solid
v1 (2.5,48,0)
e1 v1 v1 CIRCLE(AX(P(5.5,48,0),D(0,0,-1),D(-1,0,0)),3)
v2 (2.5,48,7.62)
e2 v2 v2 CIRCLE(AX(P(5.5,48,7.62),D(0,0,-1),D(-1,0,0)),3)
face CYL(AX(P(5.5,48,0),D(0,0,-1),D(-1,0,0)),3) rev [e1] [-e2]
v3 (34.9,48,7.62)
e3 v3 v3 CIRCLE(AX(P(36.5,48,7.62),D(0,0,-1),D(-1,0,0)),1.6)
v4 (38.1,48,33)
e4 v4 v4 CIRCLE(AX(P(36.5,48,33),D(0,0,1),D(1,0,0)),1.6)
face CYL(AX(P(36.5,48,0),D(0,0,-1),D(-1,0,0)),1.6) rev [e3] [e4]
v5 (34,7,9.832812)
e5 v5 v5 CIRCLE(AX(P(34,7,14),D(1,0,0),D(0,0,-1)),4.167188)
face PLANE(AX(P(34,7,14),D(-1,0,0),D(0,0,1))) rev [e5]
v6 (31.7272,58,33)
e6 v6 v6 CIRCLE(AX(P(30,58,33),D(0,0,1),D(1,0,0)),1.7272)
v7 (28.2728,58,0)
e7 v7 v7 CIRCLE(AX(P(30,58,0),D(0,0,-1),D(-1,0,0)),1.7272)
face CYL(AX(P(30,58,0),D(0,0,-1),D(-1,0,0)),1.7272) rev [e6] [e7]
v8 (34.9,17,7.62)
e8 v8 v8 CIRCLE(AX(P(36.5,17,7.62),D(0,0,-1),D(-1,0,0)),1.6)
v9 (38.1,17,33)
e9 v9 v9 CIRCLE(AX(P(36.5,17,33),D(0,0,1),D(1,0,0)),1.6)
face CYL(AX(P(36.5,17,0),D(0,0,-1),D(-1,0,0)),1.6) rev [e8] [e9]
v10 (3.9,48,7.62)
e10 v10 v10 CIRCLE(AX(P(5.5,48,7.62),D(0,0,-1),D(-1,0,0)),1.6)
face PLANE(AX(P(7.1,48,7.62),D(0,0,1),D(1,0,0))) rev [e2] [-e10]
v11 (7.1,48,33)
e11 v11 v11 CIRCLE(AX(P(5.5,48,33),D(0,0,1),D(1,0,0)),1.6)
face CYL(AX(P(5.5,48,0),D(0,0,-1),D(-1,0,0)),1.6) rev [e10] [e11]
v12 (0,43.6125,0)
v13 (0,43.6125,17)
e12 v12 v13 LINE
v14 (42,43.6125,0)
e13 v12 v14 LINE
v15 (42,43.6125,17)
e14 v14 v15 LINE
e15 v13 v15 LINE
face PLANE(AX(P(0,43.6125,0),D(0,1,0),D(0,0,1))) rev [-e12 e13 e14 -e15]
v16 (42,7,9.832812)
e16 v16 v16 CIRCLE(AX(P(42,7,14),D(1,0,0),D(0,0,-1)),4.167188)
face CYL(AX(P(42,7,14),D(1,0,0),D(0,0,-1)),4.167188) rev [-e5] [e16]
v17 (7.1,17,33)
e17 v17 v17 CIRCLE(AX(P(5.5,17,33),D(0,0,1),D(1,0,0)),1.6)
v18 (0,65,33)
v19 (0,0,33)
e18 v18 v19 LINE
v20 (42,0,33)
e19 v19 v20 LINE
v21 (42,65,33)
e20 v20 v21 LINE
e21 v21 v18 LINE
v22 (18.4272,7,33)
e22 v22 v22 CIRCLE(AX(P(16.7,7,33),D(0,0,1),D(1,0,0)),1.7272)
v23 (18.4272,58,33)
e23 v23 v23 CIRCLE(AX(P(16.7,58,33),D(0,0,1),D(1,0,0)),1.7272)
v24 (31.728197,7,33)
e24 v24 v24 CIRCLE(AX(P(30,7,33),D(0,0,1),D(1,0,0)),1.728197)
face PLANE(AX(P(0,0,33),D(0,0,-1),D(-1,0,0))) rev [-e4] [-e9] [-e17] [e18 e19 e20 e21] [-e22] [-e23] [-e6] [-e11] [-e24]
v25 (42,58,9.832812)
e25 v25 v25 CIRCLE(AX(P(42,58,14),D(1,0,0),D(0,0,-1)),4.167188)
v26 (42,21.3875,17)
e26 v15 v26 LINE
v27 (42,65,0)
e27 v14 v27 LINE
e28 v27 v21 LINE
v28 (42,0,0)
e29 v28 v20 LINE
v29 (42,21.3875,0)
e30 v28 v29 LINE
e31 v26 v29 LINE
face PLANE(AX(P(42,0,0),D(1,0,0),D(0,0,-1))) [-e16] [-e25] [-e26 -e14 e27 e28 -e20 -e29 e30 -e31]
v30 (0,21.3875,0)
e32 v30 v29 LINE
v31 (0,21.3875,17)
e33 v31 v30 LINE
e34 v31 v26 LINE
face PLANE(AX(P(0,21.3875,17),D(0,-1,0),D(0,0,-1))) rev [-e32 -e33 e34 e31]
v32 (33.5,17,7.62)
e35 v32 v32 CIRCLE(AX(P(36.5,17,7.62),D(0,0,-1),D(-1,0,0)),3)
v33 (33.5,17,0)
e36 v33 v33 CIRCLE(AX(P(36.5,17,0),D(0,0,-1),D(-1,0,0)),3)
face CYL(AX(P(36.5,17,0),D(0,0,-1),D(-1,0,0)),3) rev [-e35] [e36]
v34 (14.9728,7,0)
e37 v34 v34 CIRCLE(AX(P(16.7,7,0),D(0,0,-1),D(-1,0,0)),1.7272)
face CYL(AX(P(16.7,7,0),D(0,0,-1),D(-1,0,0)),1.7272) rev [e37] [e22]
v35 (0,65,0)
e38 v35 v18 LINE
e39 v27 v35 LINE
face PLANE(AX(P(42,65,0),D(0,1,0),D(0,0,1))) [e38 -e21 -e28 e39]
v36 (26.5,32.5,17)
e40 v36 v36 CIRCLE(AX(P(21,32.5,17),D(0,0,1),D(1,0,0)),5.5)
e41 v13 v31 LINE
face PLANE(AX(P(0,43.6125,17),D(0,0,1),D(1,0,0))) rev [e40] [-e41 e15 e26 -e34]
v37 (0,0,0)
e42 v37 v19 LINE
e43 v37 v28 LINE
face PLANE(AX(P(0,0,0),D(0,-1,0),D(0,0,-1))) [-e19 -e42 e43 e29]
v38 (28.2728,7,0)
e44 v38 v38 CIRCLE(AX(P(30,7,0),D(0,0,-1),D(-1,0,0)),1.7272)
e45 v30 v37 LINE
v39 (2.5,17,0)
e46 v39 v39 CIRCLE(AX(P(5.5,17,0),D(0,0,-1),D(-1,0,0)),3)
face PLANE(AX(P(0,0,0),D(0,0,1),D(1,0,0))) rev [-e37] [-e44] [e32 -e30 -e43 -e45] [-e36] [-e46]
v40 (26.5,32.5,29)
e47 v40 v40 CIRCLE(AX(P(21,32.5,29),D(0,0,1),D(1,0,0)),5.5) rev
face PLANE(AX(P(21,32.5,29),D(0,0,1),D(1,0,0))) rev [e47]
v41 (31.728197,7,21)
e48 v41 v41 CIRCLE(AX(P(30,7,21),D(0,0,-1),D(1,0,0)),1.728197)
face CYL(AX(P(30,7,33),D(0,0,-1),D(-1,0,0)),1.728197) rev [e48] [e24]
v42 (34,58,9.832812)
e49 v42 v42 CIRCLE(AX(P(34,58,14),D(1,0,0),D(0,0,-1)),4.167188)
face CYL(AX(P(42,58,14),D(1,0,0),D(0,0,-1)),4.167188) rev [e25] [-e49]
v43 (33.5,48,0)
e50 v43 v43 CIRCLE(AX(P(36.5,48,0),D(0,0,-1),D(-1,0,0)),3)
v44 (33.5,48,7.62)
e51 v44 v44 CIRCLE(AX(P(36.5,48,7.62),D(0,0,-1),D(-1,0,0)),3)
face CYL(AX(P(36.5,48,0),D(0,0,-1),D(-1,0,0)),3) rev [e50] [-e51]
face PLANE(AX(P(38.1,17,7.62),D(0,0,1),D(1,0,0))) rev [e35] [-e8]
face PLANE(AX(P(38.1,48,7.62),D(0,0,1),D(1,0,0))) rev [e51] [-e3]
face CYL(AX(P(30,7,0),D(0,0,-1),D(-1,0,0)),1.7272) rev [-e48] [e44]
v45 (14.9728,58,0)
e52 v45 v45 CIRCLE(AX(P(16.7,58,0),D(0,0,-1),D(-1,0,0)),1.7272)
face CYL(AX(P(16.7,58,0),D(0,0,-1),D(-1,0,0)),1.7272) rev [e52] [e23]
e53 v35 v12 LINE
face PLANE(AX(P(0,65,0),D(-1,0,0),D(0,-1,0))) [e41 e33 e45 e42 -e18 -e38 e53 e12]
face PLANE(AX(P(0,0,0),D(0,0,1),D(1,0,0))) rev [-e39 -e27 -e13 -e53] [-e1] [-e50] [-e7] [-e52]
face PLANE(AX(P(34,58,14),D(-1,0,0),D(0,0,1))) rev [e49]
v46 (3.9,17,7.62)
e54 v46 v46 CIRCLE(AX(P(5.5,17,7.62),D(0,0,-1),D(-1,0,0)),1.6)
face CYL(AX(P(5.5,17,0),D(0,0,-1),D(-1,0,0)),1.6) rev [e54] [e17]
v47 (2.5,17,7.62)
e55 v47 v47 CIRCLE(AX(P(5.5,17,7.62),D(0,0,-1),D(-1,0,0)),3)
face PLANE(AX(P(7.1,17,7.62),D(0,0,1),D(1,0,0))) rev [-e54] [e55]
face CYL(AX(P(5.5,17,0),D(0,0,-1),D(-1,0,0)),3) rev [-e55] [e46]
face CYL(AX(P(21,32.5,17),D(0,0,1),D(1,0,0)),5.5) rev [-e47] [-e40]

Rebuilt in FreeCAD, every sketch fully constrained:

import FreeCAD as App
import Part
import Sketcher

V = App.Vector

doc = App.newDocument("Part")
body = doc.addObject("PartDesign::Body", "Body")

# Sketch on XY plane
sketch1 = body.newObject("Sketcher::SketchObject", "Sketch")
sketch1.AttachmentSupport = (doc.getObject("XY_Plane"), [""])
sketch1.MapMode = "FlatFace"
sketch1.AttachmentOffset = App.Placement(V(0, 0, 21), App.Rotation())
sketch1.addGeometry(Part.LineSegment(V(0, 65, 0), V(0, 0, 0)), False)
sketch1.addGeometry(Part.LineSegment(V(0, 0, 0), V(42, 0, 0)), False)
sketch1.addGeometry(Part.LineSegment(V(42, 0, 0), V(42, 65, 0)), False)
sketch1.addGeometry(Part.LineSegment(V(42, 65, 0), V(0, 65, 0)), False)
sketch1.addConstraint(Sketcher.Constraint("Coincident", 0, 2, 1, 1))
sketch1.addConstraint(Sketcher.Constraint("Coincident", 1, 2, 2, 1))
sketch1.addConstraint(Sketcher.Constraint("Coincident", 2, 2, 3, 1))
sketch1.addConstraint(Sketcher.Constraint("Coincident", 3, 2, 0, 1))
sketch1.addConstraint(Sketcher.Constraint("Vertical", 0))
sketch1.addConstraint(Sketcher.Constraint("Horizontal", 1))
sketch1.addConstraint(Sketcher.Constraint("Vertical", 2))
sketch1.addConstraint(Sketcher.Constraint("Horizontal", 3))
sketch1.addConstraint(Sketcher.Constraint("Coincident", 0, 2, -1, 1))
sketch1.addConstraint(Sketcher.Constraint("DistanceX", 1, 1, 1, 2, 42.0))
sketch1.addConstraint(Sketcher.Constraint("DistanceY", 0, 2, 0, 1, 65.0))
pad1 = body.newObject("PartDesign::Pad", "Pad")
pad1.Profile = sketch1
pad1.Length = 21
pad1.Reversed = True

# Sketch on YZ plane
sketch2 = body.newObject("Sketcher::SketchObject", "Sketch001")
sketch2.AttachmentSupport = (doc.getObject("YZ_Plane"), [""])
sketch2.MapMode = "FlatFace"
sketch2.AttachmentOffset = App.Placement(V(0, 0, 42), App.Rotation())
sketch2.addGeometry(Part.LineSegment(V(43.6125, 17, 0), V(21.3875, 17, 0)), False)
sketch2.addGeometry(Part.LineSegment(V(21.3875, 17, 0), V(21.3875, 0, 0)), False)
sketch2.addGeometry(Part.LineSegment(V(21.3875, 0, 0), V(43.6125, 0, 0)), False)
sketch2.addGeometry(Part.LineSegment(V(43.6125, 0, 0), V(43.6125, 17, 0)), False)
sketch2.addConstraint(Sketcher.Constraint("Coincident", 0, 2, 1, 1))
sketch2.addConstraint(Sketcher.Constraint("Coincident", 1, 2, 2, 1))
sketch2.addConstraint(Sketcher.Constraint("Coincident", 2, 2, 3, 1))
sketch2.addConstraint(Sketcher.Constraint("Coincident", 3, 2, 0, 1))
sketch2.addConstraint(Sketcher.Constraint("Horizontal", 0))
sketch2.addConstraint(Sketcher.Constraint("Vertical", 1))
sketch2.addConstraint(Sketcher.Constraint("Horizontal", 2))
sketch2.addConstraint(Sketcher.Constraint("Vertical", 3))
sketch2.addConstraint(Sketcher.Constraint("PointOnObject", 1, 2, -1))
sketch2.addConstraint(Sketcher.Constraint("DistanceY", 1, 2, 1, 1, 17.0))
sketch2.addConstraint(Sketcher.Constraint("DistanceX", 0, 2, 0, 1, 22.225))
sketch2.addConstraint(Sketcher.Constraint("DistanceX", -1, 1, 0, 2, 21.3875))
pocket1 = body.newObject("PartDesign::Pocket", "Pocket")
pocket1.Profile = sketch2
pocket1.Type = "ThroughAll"

# Sketch on XY plane
sketch3 = body.newObject("Sketcher::SketchObject", "Sketch002")
sketch3.AttachmentSupport = (doc.getObject("XY_Plane"), [""])
sketch3.MapMode = "FlatFace"
sketch3.addGeometry(Part.Circle(V(30, 7, 0), V(0, 0, 1), 1.7272), False)
sketch3.addGeometry(Part.Circle(V(16.7, 7, 0), V(0, 0, 1), 1.7272), False)
sketch3.addGeometry(Part.Circle(V(16.7, 58, 0), V(0, 0, 1), 1.7272), False)
sketch3.addGeometry(Part.Circle(V(30, 58, 0), V(0, 0, 1), 1.7272), False)
sketch3.addConstraint(Sketcher.Constraint("Equal", 0, 1))
sketch3.addConstraint(Sketcher.Constraint("Equal", 1, 2))
sketch3.addConstraint(Sketcher.Constraint("Equal", 2, 3))
sketch3.addConstraint(Sketcher.Constraint("Horizontal", 0, 3, 1, 3))
sketch3.addConstraint(Sketcher.Constraint("Horizontal", 2, 3, 3, 3))
sketch3.addConstraint(Sketcher.Constraint("Vertical", 1, 3, 2, 3))
sketch3.addConstraint(Sketcher.Constraint("Vertical", 0, 3, 3, 3))
sketch3.addConstraint(Sketcher.Constraint("DistanceX", -1, 1, 0, 3, 30.0))
sketch3.addConstraint(Sketcher.Constraint("DistanceY", -1, 1, 0, 3, 7.0))
sketch3.addConstraint(Sketcher.Constraint("DistanceY", -1, 1, 2, 3, 58.0))
sketch3.addConstraint(Sketcher.Constraint("Diameter", 0, 3.4544))
sketch3.addConstraint(Sketcher.Constraint("DistanceX", -1, 1, 1, 3, 16.7))
doc.recompute()
hole = body.newObject("PartDesign::Hole", "Hole")
hole.Profile = sketch3
hole.ThreadType = "None"
hole.Diameter = 3.4544
hole.DepthType = "Dimension"
hole.Depth = 21
hole.DrillPoint = "Flat"
hole.Reversed = True

# Sketch on XY plane
sketch4 = body.newObject("Sketcher::SketchObject", "Sketch003")
sketch4.AttachmentSupport = (doc.getObject("XY_Plane"), [""])
sketch4.MapMode = "FlatFace"
sketch4.AttachmentOffset = App.Placement(V(0, 0, 21), App.Rotation())
sketch4.addGeometry(Part.Circle(V(21, 32.5, 0), V(0, 0, 1), 11.1125), False)
sketch4.addConstraint(Sketcher.Constraint("Diameter", 0, 22.225))
sketch4.addConstraint(Sketcher.Constraint("DistanceX", -1, 1, 0, 3, 21.0))
sketch4.addConstraint(Sketcher.Constraint("DistanceY", -1, 1, 0, 3, 32.5))
doc.recompute()
hole2 = body.newObject("PartDesign::Hole", "Hole001")
hole2.Profile = sketch4
hole2.ThreadType = "None"
hole2.Diameter = 22.225
hole2.DepthType = "Dimension"
hole2.Depth = 21
hole2.DrillPoint = "Flat"

# Sketch on XY plane
sketch5 = body.newObject("Sketcher::SketchObject", "Sketch004")
sketch5.AttachmentSupport = (doc.getObject("XY_Plane"), [""])
sketch5.MapMode = "FlatFace"
sketch5.addGeometry(Part.Circle(V(36.5, 17, 0), V(0, 0, 1), 1.6), False)
sketch5.addGeometry(Part.Circle(V(5.5, 17, 0), V(0, 0, 1), 1.6), False)
sketch5.addGeometry(Part.Circle(V(5.5, 48, 0), V(0, 0, 1), 1.6), False)
sketch5.addGeometry(Part.Circle(V(36.5, 48, 0), V(0, 0, 1), 1.6), False)
sketch5.addConstraint(Sketcher.Constraint("Equal", 0, 1))
sketch5.addConstraint(Sketcher.Constraint("Equal", 1, 2))
sketch5.addConstraint(Sketcher.Constraint("Equal", 2, 3))
sketch5.addConstraint(Sketcher.Constraint("Horizontal", 0, 3, 1, 3))
sketch5.addConstraint(Sketcher.Constraint("Horizontal", 2, 3, 3, 3))
sketch5.addConstraint(Sketcher.Constraint("Vertical", 1, 3, 2, 3))
sketch5.addConstraint(Sketcher.Constraint("Vertical", 0, 3, 3, 3))
sketch5.addConstraint(Sketcher.Constraint("Diameter", 0, 3.2))
sketch5.addConstraint(Sketcher.Constraint("DistanceY", -1, 1, 0, 3, 17.0))
sketch5.addConstraint(Sketcher.Constraint("DistanceY", -1, 1, 2, 3, 48.0))
sketch5.addConstraint(Sketcher.Constraint("DistanceX", 1, 3, 0, 3, 31.0))
sketch5.addConstraint(Sketcher.Constraint("DistanceX", -1, 1, 0, 3, 36.5))
doc.recompute()
hole3 = body.newObject("PartDesign::Hole", "Hole002")
hole3.Profile = sketch5
hole3.ThreadType = "None"
hole3.Diameter = 3.2
hole3.DepthType = "Dimension"
hole3.Depth = 21
hole3.DrillPoint = "Flat"
hole3.HoleCutType = "Counterbore"
hole3.HoleCutDiameter = 6
hole3.HoleCutDepth = 7.62
hole3.Reversed = True

# Sketch on YZ plane
sketch6 = body.newObject("Sketcher::SketchObject", "Sketch005")
sketch6.AttachmentSupport = (doc.getObject("YZ_Plane"), [""])
sketch6.MapMode = "FlatFace"
sketch6.AttachmentOffset = App.Placement(V(0, 0, 42), App.Rotation())
sketch6.addGeometry(Part.Circle(V(7, 14, 0), V(0, 0, 1), 4.167187), False)
sketch6.addGeometry(Part.Circle(V(58, 14, 0), V(0, 0, 1), 4.167187), False)
sketch6.addConstraint(Sketcher.Constraint("Equal", 0, 1))
sketch6.addConstraint(Sketcher.Constraint("Horizontal", 0, 3, 1, 3))
sketch6.addConstraint(Sketcher.Constraint("DistanceX", -1, 1, 0, 3, 7.0))
sketch6.addConstraint(Sketcher.Constraint("DistanceY", -1, 1, 0, 3, 14.0))
sketch6.addConstraint(Sketcher.Constraint("DistanceX", -1, 1, 1, 3, 58.0))
sketch6.addConstraint(Sketcher.Constraint("Diameter", 0, 8.334375))
doc.recompute()
hole4 = body.newObject("PartDesign::Hole", "Hole003")
hole4.Profile = sketch6
hole4.ThreadType = "None"
hole4.Diameter = 8.334375
hole4.DepthType = "Dimension"
hole4.Depth = 8
hole4.DrillPoint = "Flat"

# Sketch on XY plane
sketch7 = body.newObject("Sketcher::SketchObject", "Sketch006")
sketch7.AttachmentSupport = (doc.getObject("XY_Plane"), [""])
sketch7.MapMode = "FlatFace"
sketch7.AttachmentOffset = App.Placement(V(0, 0, 21), App.Rotation())
sketch7.addGeometry(Part.Circle(V(21, 32.5, 0), V(0, 0, 1), 11.1125), False)
sketch7.addGeometry(Part.Circle(V(21, 32.5, 0), V(0, 0, 1), 5.5), False)
sketch7.addConstraint(Sketcher.Constraint("Coincident", 1, 3, 0, 3))
sketch7.addConstraint(Sketcher.Constraint("Diameter", 1, 11.0))
sketch7.addConstraint(Sketcher.Constraint("Diameter", 0, 22.225))
sketch7.addConstraint(Sketcher.Constraint("DistanceX", -1, 1, 0, 3, 21.0))
sketch7.addConstraint(Sketcher.Constraint("DistanceY", -1, 1, 0, 3, 32.5))
pad2 = body.newObject("PartDesign::Pad", "Pad001")
pad2.Profile = sketch7
pad2.Length = 4
pad2.Reversed = True

# Sketch on XY plane
sketch8 = body.newObject("Sketcher::SketchObject", "Sketch007")
sketch8.AttachmentSupport = (doc.getObject("XY_Plane"), [""])
sketch8.MapMode = "FlatFace"
sketch8.AttachmentOffset = App.Placement(V(0, 0, 21), App.Rotation())
sketch8.addGeometry(Part.LineSegment(V(0, 65, 0), V(0, 0, 0)), False)
sketch8.addGeometry(Part.LineSegment(V(0, 0, 0), V(42, 0, 0)), False)
sketch8.addGeometry(Part.LineSegment(V(42, 0, 0), V(42, 65, 0)), False)
sketch8.addGeometry(Part.LineSegment(V(42, 65, 0), V(0, 65, 0)), False)
sketch8.addGeometry(Part.Circle(V(5.5, 17, 0), V(0, 0, 1), 1.6), False)
sketch8.addGeometry(Part.Circle(V(16.7, 7, 0), V(0, 0, 1), 1.7272), False)
sketch8.addGeometry(Part.Circle(V(30, 7, 0), V(0, 0, 1), 1.728197), False)
sketch8.addGeometry(Part.Circle(V(36.5, 17, 0), V(0, 0, 1), 1.6), False)
sketch8.addGeometry(Part.Circle(V(5.5, 48, 0), V(0, 0, 1), 1.6), False)
sketch8.addGeometry(Part.Circle(V(16.7, 58, 0), V(0, 0, 1), 1.7272), False)
sketch8.addGeometry(Part.Circle(V(21, 32.5, 0), V(0, 0, 1), 5.5), False)
sketch8.addGeometry(Part.Circle(V(36.5, 48, 0), V(0, 0, 1), 1.6), False)
sketch8.addGeometry(Part.Circle(V(30, 58, 0), V(0, 0, 1), 1.7272), False)
sketch8.addConstraint(Sketcher.Constraint("Coincident", 0, 2, 1, 1))
sketch8.addConstraint(Sketcher.Constraint("Coincident", 1, 2, 2, 1))
sketch8.addConstraint(Sketcher.Constraint("Coincident", 2, 2, 3, 1))
sketch8.addConstraint(Sketcher.Constraint("Coincident", 3, 2, 0, 1))
sketch8.addConstraint(Sketcher.Constraint("Vertical", 0))
sketch8.addConstraint(Sketcher.Constraint("Horizontal", 1))
sketch8.addConstraint(Sketcher.Constraint("Vertical", 2))
sketch8.addConstraint(Sketcher.Constraint("Horizontal", 3))
sketch8.addConstraint(Sketcher.Constraint("Coincident", 0, 2, -1, 1))
sketch8.addConstraint(Sketcher.Constraint("Equal", 4, 7))
sketch8.addConstraint(Sketcher.Constraint("Equal", 7, 8))
sketch8.addConstraint(Sketcher.Constraint("Equal", 5, 9))
sketch8.addConstraint(Sketcher.Constraint("Equal", 8, 11))
sketch8.addConstraint(Sketcher.Constraint("Equal", 9, 12))
sketch8.addConstraint(Sketcher.Constraint("Horizontal", 5, 3, 6, 3))
sketch8.addConstraint(Sketcher.Constraint("Horizontal", 4, 3, 7, 3))
sketch8.addConstraint(Sketcher.Constraint("Horizontal", 8, 3, 11, 3))
sketch8.addConstraint(Sketcher.Constraint("Horizontal", 9, 3, 12, 3))
sketch8.addConstraint(Sketcher.Constraint("Vertical", 4, 3, 8, 3))
sketch8.addConstraint(Sketcher.Constraint("Vertical", 5, 3, 9, 3))
sketch8.addConstraint(Sketcher.Constraint("Vertical", 7, 3, 11, 3))
sketch8.addConstraint(Sketcher.Constraint("Vertical", 6, 3, 12, 3))
sketch8.addConstraint(Sketcher.Constraint("Diameter", 10, 11.0))
sketch8.addConstraint(Sketcher.Constraint("Diameter", 4, 3.2))
sketch8.addConstraint(Sketcher.Constraint("DistanceX", 1, 1, 1, 2, 42.0))
sketch8.addConstraint(Sketcher.Constraint("DistanceY", 0, 2, 0, 1, 65.0))
sketch8.addConstraint(Sketcher.Constraint("DistanceY", -1, 1, 4, 3, 17.0))
sketch8.addConstraint(Sketcher.Constraint("DistanceY", -1, 1, 5, 3, 7.0))
sketch8.addConstraint(Sketcher.Constraint("DistanceX", -1, 1, 6, 3, 30.0))
sketch8.addConstraint(Sketcher.Constraint("DistanceY", -1, 1, 8, 3, 48.0))
sketch8.addConstraint(Sketcher.Constraint("DistanceY", -1, 1, 9, 3, 58.0))
sketch8.addConstraint(Sketcher.Constraint("DistanceX", -1, 1, 10, 3, 21.0))
sketch8.addConstraint(Sketcher.Constraint("DistanceX", 4, 3, 7, 3, 31.0))
sketch8.addConstraint(Sketcher.Constraint("Diameter", 5, 3.4544))
sketch8.addConstraint(Sketcher.Constraint("DistanceX", -1, 1, 4, 3, 5.5))
sketch8.addConstraint(Sketcher.Constraint("DistanceX", -1, 1, 5, 3, 16.7))
sketch8.addConstraint(Sketcher.Constraint("DistanceY", -1, 1, 10, 3, 32.5))
sketch8.addConstraint(Sketcher.Constraint("Diameter", 6, 3.456394))
pad3 = body.newObject("PartDesign::Pad", "Pad002")
pad3.Profile = sketch8
pad3.Length = 12

# Sketch on XY plane
sketch9 = body.newObject("Sketcher::SketchObject", "Sketch008")
sketch9.AttachmentSupport = (doc.getObject("XY_Plane"), [""])
sketch9.MapMode = "FlatFace"
sketch9.AttachmentOffset = App.Placement(V(0, 0, 33), App.Rotation())
sketch9.addGeometry(Part.Circle(V(21, 32.5, 0), V(0, 0, 1), 5.5), False)
sketch9.addConstraint(Sketcher.Constraint("Diameter", 0, 11.0))
sketch9.addConstraint(Sketcher.Constraint("DistanceX", -1, 1, 0, 3, 21.0))
sketch9.addConstraint(Sketcher.Constraint("DistanceY", -1, 1, 0, 3, 32.5))
pad4 = body.newObject("PartDesign::Pad", "Pad003")
pad4.Profile = sketch9
pad4.Length = 4
pad4.Reversed = True

doc.recompute()
